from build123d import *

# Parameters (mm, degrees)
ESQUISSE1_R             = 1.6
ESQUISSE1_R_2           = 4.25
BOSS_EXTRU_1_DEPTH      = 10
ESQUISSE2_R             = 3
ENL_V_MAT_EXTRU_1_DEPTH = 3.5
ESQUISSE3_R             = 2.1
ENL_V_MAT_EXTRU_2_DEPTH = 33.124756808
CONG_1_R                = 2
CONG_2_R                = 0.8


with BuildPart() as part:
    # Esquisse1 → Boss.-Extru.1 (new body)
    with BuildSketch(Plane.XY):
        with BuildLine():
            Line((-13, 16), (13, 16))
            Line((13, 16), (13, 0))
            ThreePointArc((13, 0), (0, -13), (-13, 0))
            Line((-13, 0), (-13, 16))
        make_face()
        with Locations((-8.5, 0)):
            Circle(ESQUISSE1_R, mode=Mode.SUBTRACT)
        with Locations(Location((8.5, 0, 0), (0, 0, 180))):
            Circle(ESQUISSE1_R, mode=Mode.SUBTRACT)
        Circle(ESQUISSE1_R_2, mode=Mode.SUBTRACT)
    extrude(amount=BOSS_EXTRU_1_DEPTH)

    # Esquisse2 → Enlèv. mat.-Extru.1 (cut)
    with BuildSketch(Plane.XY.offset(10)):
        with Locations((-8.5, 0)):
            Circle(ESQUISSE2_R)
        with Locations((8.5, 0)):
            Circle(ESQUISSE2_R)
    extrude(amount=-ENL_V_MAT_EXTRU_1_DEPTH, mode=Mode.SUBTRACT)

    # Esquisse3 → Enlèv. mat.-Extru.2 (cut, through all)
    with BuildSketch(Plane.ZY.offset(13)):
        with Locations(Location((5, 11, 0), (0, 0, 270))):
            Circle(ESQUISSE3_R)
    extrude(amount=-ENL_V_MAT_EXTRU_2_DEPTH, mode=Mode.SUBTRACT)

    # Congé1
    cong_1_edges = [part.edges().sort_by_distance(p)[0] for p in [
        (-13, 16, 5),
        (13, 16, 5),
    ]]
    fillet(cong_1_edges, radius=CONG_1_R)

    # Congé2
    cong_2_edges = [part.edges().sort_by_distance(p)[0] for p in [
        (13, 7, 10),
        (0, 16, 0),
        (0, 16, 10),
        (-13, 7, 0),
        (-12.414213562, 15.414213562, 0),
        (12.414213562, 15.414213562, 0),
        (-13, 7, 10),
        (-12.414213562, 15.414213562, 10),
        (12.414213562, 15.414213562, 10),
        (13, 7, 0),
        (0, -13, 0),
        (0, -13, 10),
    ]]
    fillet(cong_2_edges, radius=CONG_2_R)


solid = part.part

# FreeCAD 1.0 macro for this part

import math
import FreeCAD as App
import Part
import Sketcher
from FreeCAD import Vector
Q = App.Units.Quantity


def edges_at(feature, points):
    """Names of the edges that pass closest to the given points."""
    edges = feature.Shape.Edges
    near = lambda p: min(range(len(edges)), key=lambda i: edges[i].distToShape(Part.Vertex(*p))[0])
    return sorted({f"Edge{near(p) + 1}" for p in points})

doc = App.newDocument("Part")
body = doc.addObject("PartDesign::Body", "Body")

# Sketch on XY plane
sketch1 = body.newObject("Sketcher::SketchObject", "Sketch")
sketch1.AttachmentSupport = (doc.getObject("XY_Plane"), [""])
sketch1.MapMode = "FlatFace"
sketch1.addGeometry(Part.LineSegment(Vector(13, 16, 0), Vector(-13, 16, 0)), False)
sketch1.addGeometry(Part.LineSegment(Vector(-13, 16, 0), Vector(-13, 0, 0)), False)
sketch1.addGeometry(Part.ArcOfCircle(Part.Circle(Vector(0, 0, 0), Vector(0, 0, 1), 13), math.radians(180), math.radians(360)), False)
sketch1.addGeometry(Part.LineSegment(Vector(13, 0, 0), Vector(13, 16, 0)), False)
sketch1.addGeometry(Part.Circle(Vector(8.5, 0, 0), Vector(0, 0, 1), 1.6), False)
sketch1.addGeometry(Part.Circle(Vector(0, 0, 0), Vector(0, 0, 1), 4.2), False)
sketch1.addGeometry(Part.Circle(Vector(-8.5, 0, 0), Vector(0, 0, 1), 1.6), False)
sketch1.addConstraint(Sketcher.Constraint("Coincident", 0, 2, 1, 1))
sketch1.addConstraint(Sketcher.Constraint("Tangent", 1, 2, 2, 1))
sketch1.addConstraint(Sketcher.Constraint("Tangent", 2, 2, 3, 1))
sketch1.addConstraint(Sketcher.Constraint("Coincident", 3, 2, 0, 1))
sketch1.addConstraint(Sketcher.Constraint("Horizontal", 0))
sketch1.addConstraint(Sketcher.Constraint("Vertical", 1))
sketch1.addConstraint(Sketcher.Constraint("Vertical", 3))
sketch1.addConstraint(Sketcher.Constraint("Coincident", 2, 3, -1, 1))
sketch1.addConstraint(Sketcher.Constraint("Coincident", 5, 3, -1, 1))
sketch1.addConstraint(Sketcher.Constraint("Equal", 4, 6))
sketch1.addConstraint(Sketcher.Constraint("Symmetric", 4, 3, 6, 3, -1, 1))
sketch1.addConstraint(Sketcher.Constraint("PointOnObject", 4, 3, -1))
sketch1.addConstraint(Sketcher.Constraint("Radius", 2, Q("13 mm")))
sketch1.addConstraint(Sketcher.Constraint("Diameter", 4, Q("3.2 mm")))
sketch1.addConstraint(Sketcher.Constraint("Diameter", 5, Q("8.5 mm")))
sketch1.addConstraint(Sketcher.Constraint("DistanceY", 1, 2, 1, 1, Q("16 mm")))
sketch1.addConstraint(Sketcher.Constraint("DistanceX", 6, 3, 4, 3, Q("17 mm")))
pad1 = body.newObject("PartDesign::Pad", "Pad")
pad1.Profile = sketch1
pad1.Length = 10

# Sketch on XY plane
sketch2 = body.newObject("Sketcher::SketchObject", "Sketch001")
sketch2.AttachmentSupport = (doc.getObject("XY_Plane"), [""])
sketch2.MapMode = "FlatFace"
sketch2.AttachmentOffset = App.Placement(Vector(0, 0, 10), App.Rotation())
sketch2.addGeometry(Part.Circle(Vector(-8.5, 0, 0), Vector(0, 0, 1), 3), False)
sketch2.addGeometry(Part.Circle(Vector(8.5, 0, 0), Vector(0, 0, 1), 3), False)
sketch2.addConstraint(Sketcher.Constraint("Equal", 0, 1))
sketch2.addConstraint(Sketcher.Constraint("Symmetric", 0, 3, 1, 3, -1, 1))
sketch2.addConstraint(Sketcher.Constraint("PointOnObject", 0, 3, -1))
sketch2.addConstraint(Sketcher.Constraint("Diameter", 0, Q("6 mm")))
sketch2.addConstraint(Sketcher.Constraint("DistanceX", 0, 3, 1, 3, Q("17 mm")))
pocket1 = body.newObject("PartDesign::Pocket", "Pocket")
pocket1.Profile = sketch2
pocket1.Length = 3.5

# Sketch on YZ plane
sketch3 = body.newObject("Sketcher::SketchObject", "Sketch002")
sketch3.AttachmentSupport = (doc.getObject("YZ_Plane"), [""])
sketch3.MapMode = "FlatFace"
sketch3.AttachmentOffset = App.Placement(Vector(0, 0, -13), App.Rotation())
sketch3.addGeometry(Part.Circle(Vector(11, 5, 0), Vector(0, 0, 1), 2.1), False)
sketch3.addConstraint(Sketcher.Constraint("Diameter", 0, Q("4.2 mm")))
sketch3.addConstraint(Sketcher.Constraint("DistanceX", -1, 1, 0, 3, Q("11 mm")))
sketch3.addConstraint(Sketcher.Constraint("DistanceY", -1, 1, 0, 3, Q("5 mm")))
pocket2 = body.newObject("PartDesign::Pocket", "Pocket001")
pocket2.Profile = sketch3
pocket2.Type = "ThroughAll"
pocket2.Reversed = True
doc.recompute()

fillet = body.newObject("PartDesign::Fillet", "Fillet")
fillet.Base = (pocket2, edges_at(pocket2, [(-13, 16, 5), (13, 16, 5)]))
fillet.Radius = 2
doc.recompute()

fillet2 = body.newObject("PartDesign::Fillet", "Fillet001")
fillet2.Base = (fillet, edges_at(fillet, [
    (13, 7, 10),
    (0, 16, 0),
    (0, 16, 10),
    (-13, 7, 0),
    (-12.414, 15.414, 0),
    (12.414, 15.414, 0),
    (-13, 7, 10),
    (-12.414, 15.414, 10),
    (12.414, 15.414, 10),
    (13, 7, 0),
    (0, -13, 0),
    (0, -13, 10),
]))
fillet2.Radius = 0.8

doc.recompute()
